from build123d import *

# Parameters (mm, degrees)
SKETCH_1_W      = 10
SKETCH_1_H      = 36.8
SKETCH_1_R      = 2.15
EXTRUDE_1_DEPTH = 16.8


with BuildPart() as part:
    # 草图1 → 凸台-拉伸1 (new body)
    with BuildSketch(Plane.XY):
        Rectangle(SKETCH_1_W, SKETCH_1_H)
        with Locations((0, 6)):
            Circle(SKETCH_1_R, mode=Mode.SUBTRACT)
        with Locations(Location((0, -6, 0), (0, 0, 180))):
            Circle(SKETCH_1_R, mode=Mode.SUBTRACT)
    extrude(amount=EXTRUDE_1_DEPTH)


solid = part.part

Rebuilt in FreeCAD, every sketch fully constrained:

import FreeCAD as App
import Part
import Sketcher


def add_polygon(sketch, points):
    """Adds a closed chain of lines whose ends are joined by coincident constraints."""
    first, n = sketch.GeometryCount, len(points)
    for a, b in zip(points, points[1:] + points[:1]):
        sketch.addGeometry(Part.LineSegment(App.Vector(*a, 0), App.Vector(*b, 0)), False)
    for i in range(n):
        sketch.addConstraint(Sketcher.Constraint("Coincident", first + i, 2, first + (i + 1) % n, 1))

doc = App.newDocument("Part")
body = doc.addObject("PartDesign::Body", "Body")

sketch1 = body.newObject("Sketcher::SketchObject", "Sketch")
sketch1.AttachmentSupport = (doc.getObject("XY_Plane"), [""])
sketch1.MapMode = "FlatFace"
add_polygon(sketch1, [(-5, 18.4), (-5, -18.4), (5, -18.4), (5, 18.4)])
sketch1.addGeometry(Part.Circle(App.Vector(0, -6, 0), App.Vector(0, 0, 1), 2.15), False)
sketch1.addGeometry(Part.Circle(App.Vector(0, 6, 0), App.Vector(0, 0, 1), 2.15), False)
sketch1.addConstraint(Sketcher.Constraint("Vertical", 0))
sketch1.addConstraint(Sketcher.Constraint("Horizontal", 1))
sketch1.addConstraint(Sketcher.Constraint("Vertical", 2))
sketch1.addConstraint(Sketcher.Constraint("Horizontal", 3))
sketch1.addConstraint(Sketcher.Constraint("Equal", 4, 5))
sketch1.addConstraint(Sketcher.Constraint("Symmetric", 4, 3, 5, 3, -1, 1))
sketch1.addConstraint(Sketcher.Constraint("Symmetric", 0, 2, 2, 2, -1, 1))
sketch1.addConstraint(Sketcher.Constraint("PointOnObject", 4, 3, -2))
sketch1.addConstraint(Sketcher.Constraint("Diameter", 4, 4.3))
sketch1.addConstraint(Sketcher.Constraint("DistanceX", 1, 1, 1, 2, 10.0))
sketch1.addConstraint(Sketcher.Constraint("DistanceY", 0, 2, 0, 1, 36.8))
sketch1.addConstraint(Sketcher.Constraint("DistanceY", 4, 3, -1, 1, 6.0))
pad1 = body.newObject("PartDesign::Pad", "Pad")
pad1.Profile = sketch1
pad1.Length = 16.8

doc.recompute()
